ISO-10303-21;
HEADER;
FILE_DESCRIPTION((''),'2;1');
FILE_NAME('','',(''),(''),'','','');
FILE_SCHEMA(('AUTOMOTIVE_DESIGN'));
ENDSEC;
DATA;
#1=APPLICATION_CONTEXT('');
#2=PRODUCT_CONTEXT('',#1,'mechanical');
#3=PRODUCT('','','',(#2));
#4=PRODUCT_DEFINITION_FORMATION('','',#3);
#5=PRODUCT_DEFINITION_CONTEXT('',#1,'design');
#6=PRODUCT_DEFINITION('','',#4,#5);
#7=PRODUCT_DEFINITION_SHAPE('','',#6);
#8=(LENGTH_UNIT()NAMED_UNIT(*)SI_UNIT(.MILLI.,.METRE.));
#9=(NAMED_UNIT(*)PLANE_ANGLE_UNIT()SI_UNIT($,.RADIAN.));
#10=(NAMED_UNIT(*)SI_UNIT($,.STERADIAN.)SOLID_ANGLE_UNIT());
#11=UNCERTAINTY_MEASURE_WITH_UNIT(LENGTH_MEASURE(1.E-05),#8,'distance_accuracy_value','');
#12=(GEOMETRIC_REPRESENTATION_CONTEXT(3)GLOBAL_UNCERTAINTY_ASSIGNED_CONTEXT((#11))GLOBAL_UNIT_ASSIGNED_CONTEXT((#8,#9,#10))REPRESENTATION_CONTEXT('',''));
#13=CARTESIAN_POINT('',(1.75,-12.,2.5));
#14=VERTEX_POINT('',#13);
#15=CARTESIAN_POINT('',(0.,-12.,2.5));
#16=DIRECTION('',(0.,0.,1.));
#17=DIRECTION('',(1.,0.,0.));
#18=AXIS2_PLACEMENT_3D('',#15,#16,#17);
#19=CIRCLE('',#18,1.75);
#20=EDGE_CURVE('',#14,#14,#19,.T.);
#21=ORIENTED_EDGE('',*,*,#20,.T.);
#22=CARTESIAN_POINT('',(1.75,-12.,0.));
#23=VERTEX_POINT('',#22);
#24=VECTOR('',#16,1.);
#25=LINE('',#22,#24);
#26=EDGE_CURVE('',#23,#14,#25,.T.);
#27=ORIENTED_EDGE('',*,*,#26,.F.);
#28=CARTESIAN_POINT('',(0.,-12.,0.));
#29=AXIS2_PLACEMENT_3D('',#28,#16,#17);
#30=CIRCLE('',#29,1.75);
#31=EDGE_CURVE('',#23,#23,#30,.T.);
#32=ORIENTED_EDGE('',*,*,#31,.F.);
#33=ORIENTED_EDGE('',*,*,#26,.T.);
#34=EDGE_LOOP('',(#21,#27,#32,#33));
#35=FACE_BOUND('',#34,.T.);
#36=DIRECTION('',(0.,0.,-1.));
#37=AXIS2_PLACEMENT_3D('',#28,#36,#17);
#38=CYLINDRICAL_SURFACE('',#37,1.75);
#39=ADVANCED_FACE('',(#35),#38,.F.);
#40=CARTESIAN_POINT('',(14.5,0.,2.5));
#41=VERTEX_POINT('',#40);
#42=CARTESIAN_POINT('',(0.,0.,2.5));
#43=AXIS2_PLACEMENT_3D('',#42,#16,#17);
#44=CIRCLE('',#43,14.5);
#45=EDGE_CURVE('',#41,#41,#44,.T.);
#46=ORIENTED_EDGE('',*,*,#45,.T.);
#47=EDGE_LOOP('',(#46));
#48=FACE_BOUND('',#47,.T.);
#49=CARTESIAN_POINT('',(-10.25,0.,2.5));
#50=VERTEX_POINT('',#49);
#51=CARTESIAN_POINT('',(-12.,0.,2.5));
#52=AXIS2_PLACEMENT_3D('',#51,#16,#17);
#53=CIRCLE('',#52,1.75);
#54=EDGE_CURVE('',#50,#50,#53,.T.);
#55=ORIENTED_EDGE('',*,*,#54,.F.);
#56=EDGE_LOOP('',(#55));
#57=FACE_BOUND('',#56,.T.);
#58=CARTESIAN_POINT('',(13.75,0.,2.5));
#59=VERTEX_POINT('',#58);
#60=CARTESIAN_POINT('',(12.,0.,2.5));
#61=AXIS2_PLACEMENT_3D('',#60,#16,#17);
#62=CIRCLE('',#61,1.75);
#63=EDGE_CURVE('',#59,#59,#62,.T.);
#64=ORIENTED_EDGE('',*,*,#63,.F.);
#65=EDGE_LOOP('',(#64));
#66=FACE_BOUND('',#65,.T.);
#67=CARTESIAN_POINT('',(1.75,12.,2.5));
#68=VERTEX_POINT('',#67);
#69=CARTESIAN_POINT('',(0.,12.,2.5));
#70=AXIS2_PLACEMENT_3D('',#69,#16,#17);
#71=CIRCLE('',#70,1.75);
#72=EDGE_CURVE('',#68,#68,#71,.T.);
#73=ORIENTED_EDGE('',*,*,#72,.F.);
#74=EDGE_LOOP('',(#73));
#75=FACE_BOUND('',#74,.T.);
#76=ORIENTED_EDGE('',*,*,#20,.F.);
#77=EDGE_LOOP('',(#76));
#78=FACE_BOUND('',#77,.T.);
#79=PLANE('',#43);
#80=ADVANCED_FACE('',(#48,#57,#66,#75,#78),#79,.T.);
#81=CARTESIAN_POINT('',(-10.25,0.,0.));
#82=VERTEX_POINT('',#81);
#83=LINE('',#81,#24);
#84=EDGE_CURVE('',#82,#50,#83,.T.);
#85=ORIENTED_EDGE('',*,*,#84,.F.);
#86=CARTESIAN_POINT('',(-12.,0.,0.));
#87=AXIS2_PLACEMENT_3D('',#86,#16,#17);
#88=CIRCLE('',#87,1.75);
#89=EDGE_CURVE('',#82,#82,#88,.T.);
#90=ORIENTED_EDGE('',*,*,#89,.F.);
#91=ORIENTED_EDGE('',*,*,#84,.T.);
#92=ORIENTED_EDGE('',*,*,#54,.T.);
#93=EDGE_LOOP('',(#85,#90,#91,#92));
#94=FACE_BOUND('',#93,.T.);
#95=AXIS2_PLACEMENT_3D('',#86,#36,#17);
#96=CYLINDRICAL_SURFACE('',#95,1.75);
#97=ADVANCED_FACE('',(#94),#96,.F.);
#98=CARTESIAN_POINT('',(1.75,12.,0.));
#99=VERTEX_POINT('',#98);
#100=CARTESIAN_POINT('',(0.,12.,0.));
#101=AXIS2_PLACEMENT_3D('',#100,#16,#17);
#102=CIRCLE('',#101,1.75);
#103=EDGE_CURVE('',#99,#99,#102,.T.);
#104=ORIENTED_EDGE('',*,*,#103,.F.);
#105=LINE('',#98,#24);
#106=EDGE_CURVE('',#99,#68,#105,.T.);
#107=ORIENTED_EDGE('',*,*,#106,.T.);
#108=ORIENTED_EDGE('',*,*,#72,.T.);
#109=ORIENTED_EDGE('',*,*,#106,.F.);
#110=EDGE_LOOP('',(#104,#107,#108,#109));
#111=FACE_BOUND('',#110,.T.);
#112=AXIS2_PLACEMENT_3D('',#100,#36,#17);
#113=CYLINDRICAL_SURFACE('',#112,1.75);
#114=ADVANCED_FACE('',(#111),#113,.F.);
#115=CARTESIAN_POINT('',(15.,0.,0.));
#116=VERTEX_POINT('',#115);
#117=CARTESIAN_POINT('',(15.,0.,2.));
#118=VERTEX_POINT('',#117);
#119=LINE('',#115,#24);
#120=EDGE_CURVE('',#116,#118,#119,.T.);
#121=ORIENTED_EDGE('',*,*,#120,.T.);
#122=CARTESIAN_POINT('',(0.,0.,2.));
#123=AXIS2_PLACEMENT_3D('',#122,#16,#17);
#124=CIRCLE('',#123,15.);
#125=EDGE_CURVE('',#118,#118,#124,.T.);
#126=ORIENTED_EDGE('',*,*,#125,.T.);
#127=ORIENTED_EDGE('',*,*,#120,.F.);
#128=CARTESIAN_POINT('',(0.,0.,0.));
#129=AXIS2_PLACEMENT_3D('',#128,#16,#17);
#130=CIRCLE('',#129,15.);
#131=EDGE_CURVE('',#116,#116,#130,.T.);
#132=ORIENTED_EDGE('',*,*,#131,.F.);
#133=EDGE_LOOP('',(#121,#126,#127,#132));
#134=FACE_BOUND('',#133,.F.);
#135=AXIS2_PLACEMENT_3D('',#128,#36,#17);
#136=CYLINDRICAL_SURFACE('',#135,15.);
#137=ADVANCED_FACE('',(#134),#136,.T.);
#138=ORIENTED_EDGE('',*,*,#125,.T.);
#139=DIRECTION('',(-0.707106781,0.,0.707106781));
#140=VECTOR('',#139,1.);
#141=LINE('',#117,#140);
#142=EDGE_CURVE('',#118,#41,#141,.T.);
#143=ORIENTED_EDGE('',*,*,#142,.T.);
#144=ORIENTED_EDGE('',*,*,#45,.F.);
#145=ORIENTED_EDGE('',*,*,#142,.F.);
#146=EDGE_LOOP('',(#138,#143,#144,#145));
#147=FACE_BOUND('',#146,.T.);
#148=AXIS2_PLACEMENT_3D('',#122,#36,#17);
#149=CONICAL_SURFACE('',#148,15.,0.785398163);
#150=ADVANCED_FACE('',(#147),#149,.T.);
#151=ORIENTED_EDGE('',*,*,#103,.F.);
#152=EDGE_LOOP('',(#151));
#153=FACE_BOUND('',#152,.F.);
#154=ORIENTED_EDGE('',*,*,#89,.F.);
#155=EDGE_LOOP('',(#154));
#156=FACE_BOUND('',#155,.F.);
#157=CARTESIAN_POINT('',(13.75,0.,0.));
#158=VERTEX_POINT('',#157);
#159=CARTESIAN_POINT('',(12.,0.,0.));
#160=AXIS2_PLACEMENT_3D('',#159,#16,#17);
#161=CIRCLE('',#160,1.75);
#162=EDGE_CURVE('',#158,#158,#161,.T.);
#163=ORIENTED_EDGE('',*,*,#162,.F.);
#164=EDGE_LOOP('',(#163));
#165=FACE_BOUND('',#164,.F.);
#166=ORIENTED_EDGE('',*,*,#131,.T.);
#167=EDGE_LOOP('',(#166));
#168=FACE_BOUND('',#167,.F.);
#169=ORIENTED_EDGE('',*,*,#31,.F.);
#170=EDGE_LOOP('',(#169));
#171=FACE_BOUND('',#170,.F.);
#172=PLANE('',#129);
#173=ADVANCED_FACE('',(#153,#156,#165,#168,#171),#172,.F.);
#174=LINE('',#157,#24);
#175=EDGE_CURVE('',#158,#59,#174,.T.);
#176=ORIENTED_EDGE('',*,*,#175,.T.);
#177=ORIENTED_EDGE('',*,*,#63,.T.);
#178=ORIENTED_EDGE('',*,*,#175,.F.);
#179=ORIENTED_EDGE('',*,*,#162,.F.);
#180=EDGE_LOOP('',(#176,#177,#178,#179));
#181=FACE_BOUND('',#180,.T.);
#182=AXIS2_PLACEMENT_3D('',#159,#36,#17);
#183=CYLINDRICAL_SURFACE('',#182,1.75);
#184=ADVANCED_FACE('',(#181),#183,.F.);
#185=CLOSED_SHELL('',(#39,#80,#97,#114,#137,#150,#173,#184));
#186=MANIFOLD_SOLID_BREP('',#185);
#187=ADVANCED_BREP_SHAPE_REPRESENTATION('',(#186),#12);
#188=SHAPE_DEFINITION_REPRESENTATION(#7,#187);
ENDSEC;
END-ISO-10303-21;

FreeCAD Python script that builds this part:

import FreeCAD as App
import Part
import Sketcher
from FreeCAD import Vector
Q = App.Units.Quantity


def edges_at(feature, points):
    """Names of the edges that pass closest to the given points."""
    edges = feature.Shape.Edges
    near = lambda p: min(range(len(edges)), key=lambda i: edges[i].distToShape(Part.Vertex(*p))[0])
    return sorted({f"Edge{near(p) + 1}" for p in points})

doc = App.newDocument("Part")
body = doc.addObject("PartDesign::Body", "Body")

# Sketch on XY plane
sketch1 = body.newObject("Sketcher::SketchObject", "Sketch")
sketch1.AttachmentSupport = (doc.getObject("XY_Plane"), [""])
sketch1.MapMode = "FlatFace"
sketch1.addGeometry([
    Part.Circle(Vector(0, 0, 0), Vector(0, 0, 1), 15),  # 0
    Part.Circle(Vector(0, -12, 0), Vector(0, 0, 1), 1.75),  # 1
    Part.Circle(Vector(-12, 0, 0), Vector(0, 0, 1), 1.75),  # 2
    Part.Circle(Vector(12, 0, 0), Vector(0, 0, 1), 1.75),  # 3
    Part.Circle(Vector(0, 12, 0), Vector(0, 0, 1), 1.75),  # 4
], False)
sketch1.addConstraint([
    Sketcher.Constraint("Coincident", 0, 3, -1, 1),
    Sketcher.Constraint("Equal", 1, 2),
    Sketcher.Constraint("Equal", 2, 3),
    Sketcher.Constraint("Equal", 3, 4),
    Sketcher.Constraint("Symmetric", 2, 3, 3, 3, -1, 1),
    Sketcher.Constraint("Symmetric", 1, 3, 4, 3, -1, 1),
    Sketcher.Constraint("PointOnObject", 1, 3, -2),
    Sketcher.Constraint("PointOnObject", 2, 3, -1),
    Sketcher.Constraint("Diameter", 0, Q("30 mm")),
    Sketcher.Constraint("Diameter", 1, Q("3.5 mm")),
    Sketcher.Constraint("DistanceY", 1, 3, -1, 1, Q("12 mm")),
    Sketcher.Constraint("DistanceX", 2, 3, -1, 1, Q("12 mm")),
])
pad1 = body.newObject("PartDesign::Pad", "Pad")
pad1.Profile = sketch1
pad1.Length = 2.5
doc.recompute()

chamfer = body.newObject("PartDesign::Chamfer", "Chamfer")
chamfer.Base = (pad1, edges_at(pad1, [(-15, 0, 2.5)]))
chamfer.Size = 0.5

doc.recompute()
